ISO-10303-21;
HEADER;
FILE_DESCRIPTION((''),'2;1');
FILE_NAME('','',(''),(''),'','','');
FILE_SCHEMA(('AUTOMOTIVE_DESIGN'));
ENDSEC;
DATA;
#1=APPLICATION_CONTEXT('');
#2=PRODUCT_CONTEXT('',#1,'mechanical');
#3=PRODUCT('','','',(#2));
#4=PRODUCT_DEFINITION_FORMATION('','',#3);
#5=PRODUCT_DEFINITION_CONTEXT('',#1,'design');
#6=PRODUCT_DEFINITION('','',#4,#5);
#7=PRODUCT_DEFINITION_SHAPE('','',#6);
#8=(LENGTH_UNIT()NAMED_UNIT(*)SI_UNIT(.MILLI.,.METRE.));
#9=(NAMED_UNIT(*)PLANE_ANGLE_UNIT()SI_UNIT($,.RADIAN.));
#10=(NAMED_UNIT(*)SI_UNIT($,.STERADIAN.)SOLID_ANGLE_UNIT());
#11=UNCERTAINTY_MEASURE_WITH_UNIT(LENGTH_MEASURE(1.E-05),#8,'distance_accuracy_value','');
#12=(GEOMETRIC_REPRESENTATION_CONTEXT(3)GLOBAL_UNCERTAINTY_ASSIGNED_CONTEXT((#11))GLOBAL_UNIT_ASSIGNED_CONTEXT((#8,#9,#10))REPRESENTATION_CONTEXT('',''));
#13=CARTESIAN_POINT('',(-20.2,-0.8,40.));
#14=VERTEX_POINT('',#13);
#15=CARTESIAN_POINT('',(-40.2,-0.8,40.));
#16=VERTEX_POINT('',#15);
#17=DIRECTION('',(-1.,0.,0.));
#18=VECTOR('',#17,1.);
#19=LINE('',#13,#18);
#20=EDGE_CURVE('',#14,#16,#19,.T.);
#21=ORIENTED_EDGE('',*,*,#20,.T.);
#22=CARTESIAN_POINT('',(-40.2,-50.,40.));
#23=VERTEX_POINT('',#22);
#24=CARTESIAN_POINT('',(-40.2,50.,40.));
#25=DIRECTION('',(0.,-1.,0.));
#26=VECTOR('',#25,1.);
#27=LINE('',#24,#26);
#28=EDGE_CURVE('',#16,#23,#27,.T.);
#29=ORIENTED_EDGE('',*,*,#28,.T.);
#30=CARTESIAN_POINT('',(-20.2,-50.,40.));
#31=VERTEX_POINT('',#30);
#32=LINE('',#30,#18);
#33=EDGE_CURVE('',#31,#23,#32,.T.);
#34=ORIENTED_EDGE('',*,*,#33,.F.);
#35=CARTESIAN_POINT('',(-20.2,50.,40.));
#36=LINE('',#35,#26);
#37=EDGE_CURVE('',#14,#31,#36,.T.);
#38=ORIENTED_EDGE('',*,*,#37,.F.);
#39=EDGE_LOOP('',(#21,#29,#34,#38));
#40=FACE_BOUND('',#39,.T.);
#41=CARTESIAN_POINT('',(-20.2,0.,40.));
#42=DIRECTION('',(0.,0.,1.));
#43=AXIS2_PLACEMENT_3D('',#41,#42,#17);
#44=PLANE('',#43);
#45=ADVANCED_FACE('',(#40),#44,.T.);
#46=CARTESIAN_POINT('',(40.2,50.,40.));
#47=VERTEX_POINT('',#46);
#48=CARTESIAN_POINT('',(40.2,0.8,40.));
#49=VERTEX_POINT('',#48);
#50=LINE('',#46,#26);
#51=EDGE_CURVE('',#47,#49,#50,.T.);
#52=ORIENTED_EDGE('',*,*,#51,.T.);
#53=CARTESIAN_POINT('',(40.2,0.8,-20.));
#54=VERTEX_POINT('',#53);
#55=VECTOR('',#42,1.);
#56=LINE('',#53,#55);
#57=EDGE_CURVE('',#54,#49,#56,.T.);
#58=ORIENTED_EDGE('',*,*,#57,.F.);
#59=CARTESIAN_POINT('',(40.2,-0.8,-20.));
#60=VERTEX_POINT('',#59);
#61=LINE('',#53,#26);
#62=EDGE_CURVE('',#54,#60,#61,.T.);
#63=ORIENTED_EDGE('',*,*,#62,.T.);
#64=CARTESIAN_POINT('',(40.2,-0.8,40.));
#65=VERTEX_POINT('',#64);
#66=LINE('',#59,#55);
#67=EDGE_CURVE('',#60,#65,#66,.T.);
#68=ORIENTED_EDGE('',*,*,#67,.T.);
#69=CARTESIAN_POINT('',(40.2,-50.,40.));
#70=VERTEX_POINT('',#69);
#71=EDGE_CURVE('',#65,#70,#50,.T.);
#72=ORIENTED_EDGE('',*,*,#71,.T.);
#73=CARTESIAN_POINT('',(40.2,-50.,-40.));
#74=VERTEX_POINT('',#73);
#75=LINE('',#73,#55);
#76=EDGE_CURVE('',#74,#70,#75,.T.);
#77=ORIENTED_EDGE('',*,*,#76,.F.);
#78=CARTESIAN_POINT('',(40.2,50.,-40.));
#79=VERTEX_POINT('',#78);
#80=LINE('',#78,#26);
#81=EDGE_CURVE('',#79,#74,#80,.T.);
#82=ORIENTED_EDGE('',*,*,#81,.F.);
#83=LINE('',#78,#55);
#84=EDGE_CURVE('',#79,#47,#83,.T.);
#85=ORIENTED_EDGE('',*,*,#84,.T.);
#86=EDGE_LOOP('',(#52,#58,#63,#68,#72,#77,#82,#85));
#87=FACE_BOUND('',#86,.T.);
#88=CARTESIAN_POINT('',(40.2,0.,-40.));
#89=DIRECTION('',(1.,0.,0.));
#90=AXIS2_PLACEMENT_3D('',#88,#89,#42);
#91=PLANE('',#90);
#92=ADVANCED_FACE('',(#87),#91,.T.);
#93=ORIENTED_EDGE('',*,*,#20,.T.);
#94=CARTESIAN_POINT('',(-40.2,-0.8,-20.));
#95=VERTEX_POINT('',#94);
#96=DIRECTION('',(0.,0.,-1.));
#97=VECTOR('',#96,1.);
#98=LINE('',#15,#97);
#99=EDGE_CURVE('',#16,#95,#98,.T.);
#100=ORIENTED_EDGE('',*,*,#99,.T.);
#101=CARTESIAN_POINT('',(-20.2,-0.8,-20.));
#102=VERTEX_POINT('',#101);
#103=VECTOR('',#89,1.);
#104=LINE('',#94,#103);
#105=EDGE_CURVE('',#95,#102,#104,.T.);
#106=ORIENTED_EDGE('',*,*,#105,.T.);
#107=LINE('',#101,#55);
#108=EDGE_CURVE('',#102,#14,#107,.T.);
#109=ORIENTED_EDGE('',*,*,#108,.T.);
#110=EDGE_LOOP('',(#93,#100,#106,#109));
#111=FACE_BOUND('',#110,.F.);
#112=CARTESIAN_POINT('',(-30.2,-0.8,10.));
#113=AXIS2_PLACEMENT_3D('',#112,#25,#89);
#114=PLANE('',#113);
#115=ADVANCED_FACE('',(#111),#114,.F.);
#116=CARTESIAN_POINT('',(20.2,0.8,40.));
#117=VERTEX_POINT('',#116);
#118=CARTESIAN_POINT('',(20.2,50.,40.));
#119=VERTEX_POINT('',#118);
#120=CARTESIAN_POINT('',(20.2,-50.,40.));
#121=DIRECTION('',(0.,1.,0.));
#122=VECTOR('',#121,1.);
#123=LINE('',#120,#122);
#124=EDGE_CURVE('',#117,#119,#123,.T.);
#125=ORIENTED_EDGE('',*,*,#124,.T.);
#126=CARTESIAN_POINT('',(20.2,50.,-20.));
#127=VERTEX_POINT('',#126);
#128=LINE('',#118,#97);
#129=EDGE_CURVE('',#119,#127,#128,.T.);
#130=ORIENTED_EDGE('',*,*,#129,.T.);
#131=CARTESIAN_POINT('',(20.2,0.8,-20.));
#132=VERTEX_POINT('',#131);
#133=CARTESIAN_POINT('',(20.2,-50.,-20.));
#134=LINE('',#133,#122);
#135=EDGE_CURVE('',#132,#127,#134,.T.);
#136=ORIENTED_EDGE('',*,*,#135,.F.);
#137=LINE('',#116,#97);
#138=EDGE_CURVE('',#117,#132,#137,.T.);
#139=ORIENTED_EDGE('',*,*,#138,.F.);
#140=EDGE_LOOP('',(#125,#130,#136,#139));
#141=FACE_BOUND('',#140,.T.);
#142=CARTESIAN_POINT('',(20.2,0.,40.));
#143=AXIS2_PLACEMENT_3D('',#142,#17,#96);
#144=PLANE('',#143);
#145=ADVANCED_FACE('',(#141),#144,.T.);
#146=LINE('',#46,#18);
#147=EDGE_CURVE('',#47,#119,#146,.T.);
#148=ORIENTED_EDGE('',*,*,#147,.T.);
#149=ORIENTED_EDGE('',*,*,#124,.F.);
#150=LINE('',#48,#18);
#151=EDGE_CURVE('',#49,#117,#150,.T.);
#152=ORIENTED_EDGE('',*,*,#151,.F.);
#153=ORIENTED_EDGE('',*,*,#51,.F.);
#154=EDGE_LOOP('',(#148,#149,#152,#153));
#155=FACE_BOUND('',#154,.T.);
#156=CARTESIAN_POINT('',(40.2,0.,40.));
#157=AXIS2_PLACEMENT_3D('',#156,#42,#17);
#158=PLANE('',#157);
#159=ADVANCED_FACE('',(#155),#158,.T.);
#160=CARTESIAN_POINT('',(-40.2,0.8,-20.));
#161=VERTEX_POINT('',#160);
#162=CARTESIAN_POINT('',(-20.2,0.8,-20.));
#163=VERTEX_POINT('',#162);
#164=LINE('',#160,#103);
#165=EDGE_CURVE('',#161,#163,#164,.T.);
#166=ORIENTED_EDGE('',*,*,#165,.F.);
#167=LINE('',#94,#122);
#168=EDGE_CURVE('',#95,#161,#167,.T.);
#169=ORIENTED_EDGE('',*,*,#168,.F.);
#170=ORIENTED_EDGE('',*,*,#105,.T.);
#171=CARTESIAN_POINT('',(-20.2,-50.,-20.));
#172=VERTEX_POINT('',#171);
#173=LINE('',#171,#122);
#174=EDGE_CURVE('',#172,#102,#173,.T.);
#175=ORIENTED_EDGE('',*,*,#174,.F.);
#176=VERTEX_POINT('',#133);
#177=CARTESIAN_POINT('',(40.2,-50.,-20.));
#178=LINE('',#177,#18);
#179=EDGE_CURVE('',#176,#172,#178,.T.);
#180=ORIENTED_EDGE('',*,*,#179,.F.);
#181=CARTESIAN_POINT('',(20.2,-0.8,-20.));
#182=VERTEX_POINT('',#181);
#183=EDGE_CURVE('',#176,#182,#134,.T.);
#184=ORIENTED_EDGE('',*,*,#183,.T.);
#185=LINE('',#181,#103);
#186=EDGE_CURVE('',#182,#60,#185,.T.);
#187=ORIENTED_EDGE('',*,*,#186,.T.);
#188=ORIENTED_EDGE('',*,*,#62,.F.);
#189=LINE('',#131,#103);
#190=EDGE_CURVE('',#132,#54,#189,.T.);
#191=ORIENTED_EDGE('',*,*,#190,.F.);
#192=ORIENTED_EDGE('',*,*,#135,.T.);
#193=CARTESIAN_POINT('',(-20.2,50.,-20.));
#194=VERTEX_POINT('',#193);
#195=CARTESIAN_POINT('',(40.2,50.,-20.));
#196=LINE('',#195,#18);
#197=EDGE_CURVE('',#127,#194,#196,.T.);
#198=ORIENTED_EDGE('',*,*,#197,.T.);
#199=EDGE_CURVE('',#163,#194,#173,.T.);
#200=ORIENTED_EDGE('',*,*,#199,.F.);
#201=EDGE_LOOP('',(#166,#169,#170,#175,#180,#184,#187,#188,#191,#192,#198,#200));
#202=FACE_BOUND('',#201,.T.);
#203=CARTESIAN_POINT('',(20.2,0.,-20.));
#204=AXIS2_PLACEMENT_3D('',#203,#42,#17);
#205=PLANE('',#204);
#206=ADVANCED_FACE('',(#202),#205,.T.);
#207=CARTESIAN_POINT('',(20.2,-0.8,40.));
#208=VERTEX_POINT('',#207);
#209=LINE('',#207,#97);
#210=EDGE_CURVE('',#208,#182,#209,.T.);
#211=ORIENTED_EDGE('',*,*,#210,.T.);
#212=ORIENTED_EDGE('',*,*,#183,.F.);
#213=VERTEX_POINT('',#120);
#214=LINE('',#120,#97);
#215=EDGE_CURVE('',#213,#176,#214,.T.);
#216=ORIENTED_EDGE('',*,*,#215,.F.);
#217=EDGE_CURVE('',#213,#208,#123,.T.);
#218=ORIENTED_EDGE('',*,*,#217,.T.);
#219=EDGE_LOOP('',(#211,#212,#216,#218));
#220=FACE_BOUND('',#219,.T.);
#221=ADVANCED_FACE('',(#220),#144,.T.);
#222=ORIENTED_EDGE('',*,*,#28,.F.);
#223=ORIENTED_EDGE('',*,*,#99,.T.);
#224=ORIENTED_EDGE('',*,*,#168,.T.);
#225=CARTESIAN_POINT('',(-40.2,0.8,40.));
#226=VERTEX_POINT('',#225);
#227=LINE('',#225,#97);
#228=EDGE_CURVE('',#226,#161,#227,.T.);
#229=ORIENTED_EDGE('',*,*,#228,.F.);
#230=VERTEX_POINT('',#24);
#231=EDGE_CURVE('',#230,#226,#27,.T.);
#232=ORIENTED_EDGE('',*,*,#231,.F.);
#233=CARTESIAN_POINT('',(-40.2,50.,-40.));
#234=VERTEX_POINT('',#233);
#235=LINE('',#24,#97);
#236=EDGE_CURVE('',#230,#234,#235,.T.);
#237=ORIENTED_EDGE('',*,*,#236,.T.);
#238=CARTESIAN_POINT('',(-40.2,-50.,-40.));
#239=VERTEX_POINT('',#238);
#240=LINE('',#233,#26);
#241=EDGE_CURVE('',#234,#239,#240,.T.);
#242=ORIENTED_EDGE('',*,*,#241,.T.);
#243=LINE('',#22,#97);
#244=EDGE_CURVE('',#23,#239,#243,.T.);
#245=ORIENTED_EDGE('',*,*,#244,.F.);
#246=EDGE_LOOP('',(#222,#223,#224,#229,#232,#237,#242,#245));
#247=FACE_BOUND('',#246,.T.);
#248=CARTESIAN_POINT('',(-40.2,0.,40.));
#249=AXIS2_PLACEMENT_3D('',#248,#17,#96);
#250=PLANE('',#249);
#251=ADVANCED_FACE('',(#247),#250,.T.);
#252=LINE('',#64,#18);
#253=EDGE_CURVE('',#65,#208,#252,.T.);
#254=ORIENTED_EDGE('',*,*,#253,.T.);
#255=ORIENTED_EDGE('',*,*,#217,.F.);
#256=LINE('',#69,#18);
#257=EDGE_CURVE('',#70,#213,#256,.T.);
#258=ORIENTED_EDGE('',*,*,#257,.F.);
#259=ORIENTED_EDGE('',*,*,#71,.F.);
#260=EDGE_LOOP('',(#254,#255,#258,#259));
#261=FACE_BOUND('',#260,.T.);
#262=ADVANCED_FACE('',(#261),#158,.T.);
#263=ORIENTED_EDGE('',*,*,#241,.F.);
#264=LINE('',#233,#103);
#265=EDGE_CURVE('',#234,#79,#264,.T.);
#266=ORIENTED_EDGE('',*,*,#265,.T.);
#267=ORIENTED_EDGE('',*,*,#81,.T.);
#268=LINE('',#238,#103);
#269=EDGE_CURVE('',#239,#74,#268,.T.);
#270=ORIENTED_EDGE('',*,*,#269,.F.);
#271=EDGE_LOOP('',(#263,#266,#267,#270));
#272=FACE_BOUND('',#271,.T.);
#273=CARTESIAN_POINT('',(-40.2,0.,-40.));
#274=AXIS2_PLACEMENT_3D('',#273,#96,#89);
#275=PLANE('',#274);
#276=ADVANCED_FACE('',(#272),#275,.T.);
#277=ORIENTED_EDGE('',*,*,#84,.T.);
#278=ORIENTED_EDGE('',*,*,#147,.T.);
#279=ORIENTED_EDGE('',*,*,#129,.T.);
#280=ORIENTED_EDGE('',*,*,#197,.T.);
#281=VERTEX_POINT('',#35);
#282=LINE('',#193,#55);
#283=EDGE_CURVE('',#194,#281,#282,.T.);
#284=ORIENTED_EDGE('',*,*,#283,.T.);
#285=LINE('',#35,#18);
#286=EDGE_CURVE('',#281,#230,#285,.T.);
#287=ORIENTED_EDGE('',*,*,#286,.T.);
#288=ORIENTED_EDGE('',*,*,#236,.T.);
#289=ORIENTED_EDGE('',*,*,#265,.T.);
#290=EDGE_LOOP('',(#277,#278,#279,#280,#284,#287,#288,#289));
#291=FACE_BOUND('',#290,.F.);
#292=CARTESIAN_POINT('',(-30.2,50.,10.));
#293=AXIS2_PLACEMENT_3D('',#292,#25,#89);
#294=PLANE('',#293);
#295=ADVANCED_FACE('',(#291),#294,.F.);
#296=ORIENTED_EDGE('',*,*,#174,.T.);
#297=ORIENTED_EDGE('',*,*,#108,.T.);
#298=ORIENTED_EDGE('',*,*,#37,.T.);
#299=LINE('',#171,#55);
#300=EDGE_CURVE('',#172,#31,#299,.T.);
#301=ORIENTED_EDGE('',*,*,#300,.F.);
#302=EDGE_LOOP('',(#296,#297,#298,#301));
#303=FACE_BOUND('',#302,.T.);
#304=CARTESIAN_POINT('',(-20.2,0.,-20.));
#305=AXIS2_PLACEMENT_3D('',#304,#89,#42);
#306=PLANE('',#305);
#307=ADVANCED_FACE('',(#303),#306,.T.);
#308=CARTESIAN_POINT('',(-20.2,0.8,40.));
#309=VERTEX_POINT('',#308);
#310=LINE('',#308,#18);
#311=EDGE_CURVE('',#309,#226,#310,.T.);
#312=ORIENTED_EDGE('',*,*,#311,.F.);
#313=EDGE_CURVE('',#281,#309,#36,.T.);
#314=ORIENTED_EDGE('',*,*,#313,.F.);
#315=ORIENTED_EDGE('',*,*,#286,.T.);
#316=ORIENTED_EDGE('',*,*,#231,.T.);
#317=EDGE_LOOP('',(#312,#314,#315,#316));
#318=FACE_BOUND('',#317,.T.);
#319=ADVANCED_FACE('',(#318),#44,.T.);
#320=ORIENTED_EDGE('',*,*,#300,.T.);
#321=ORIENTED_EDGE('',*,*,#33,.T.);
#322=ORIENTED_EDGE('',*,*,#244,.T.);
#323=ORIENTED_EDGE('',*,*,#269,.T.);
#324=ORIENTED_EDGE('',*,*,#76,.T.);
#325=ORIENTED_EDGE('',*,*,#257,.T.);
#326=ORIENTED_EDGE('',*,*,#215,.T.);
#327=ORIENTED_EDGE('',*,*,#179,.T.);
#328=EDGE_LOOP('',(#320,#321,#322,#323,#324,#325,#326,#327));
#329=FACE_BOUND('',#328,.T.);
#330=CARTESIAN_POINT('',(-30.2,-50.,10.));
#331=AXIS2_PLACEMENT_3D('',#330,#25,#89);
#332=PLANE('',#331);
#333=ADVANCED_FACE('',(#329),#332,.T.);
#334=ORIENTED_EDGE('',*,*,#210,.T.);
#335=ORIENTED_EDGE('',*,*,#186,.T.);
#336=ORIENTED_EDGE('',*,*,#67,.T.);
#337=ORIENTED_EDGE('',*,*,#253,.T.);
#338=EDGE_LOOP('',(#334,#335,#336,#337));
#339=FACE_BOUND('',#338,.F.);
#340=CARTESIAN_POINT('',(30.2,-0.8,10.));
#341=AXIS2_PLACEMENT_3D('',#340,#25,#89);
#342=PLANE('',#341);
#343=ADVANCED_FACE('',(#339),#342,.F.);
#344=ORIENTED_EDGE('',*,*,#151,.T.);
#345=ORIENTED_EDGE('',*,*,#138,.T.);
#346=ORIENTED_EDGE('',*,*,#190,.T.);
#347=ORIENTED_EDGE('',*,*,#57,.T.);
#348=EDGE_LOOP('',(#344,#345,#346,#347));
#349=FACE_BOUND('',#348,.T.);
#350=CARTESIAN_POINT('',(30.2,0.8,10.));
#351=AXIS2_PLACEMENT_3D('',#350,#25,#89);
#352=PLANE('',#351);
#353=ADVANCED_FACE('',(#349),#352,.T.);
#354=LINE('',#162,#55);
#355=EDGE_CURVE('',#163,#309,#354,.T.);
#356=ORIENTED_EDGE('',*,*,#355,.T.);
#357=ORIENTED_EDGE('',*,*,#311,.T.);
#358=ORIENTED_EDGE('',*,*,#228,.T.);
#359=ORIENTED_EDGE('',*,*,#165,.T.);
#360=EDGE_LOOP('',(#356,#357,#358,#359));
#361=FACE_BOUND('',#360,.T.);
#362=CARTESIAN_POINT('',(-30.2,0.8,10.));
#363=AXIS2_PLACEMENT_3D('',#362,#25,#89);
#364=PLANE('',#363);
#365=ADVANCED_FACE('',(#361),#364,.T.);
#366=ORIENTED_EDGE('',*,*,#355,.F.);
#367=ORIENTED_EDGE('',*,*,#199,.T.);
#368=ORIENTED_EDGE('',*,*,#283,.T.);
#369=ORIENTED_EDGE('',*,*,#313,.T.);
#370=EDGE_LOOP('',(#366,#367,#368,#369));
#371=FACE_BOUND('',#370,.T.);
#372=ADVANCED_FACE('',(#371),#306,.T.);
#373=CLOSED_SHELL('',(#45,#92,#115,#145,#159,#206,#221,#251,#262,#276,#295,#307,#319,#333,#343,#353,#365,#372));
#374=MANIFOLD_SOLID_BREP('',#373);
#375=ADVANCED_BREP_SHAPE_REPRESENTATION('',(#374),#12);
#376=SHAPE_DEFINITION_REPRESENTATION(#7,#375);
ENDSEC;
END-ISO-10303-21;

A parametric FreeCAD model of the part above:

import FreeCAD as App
import Part
import Sketcher

V = App.Vector
Q = App.Units.Quantity


def add_polygon(sketch, points):
    """Adds a closed chain of lines whose ends are joined by coincident constraints."""
    first, n = sketch.GeometryCount, len(points)
    for a, b in zip(points, points[1:] + points[:1]):
        sketch.addGeometry(Part.LineSegment(App.Vector(*a, 0), App.Vector(*b, 0)), False)
    for i in range(n):
        sketch.addConstraint(Sketcher.Constraint("Coincident", first + i, 2, first + (i + 1) % n, 1))

doc = App.newDocument("Part")
body = doc.addObject("PartDesign::Body", "Body")

# Sketch on XZ plane
sketch1 = body.newObject("Sketcher::SketchObject", "Sketch")
sketch1.AttachmentSupport = (doc.getObject("XZ_Plane"), [""])
sketch1.MapMode = "FlatFace"
add_polygon(sketch1, [(-20, -20), (-20, 40), (-40, 40), (-40, -40), (40, -40), (40, 40), (20, 40), (20, -20)])  # lines 0-7
sketch1.addConstraint([
    Sketcher.Constraint("Vertical", 0),
    Sketcher.Constraint("Horizontal", 1),
    Sketcher.Constraint("Vertical", 2),
    Sketcher.Constraint("Horizontal", 3),
    Sketcher.Constraint("Vertical", 4),
    Sketcher.Constraint("Horizontal", 5),
    Sketcher.Constraint("Vertical", 6),
    Sketcher.Constraint("Horizontal", 7),
    Sketcher.Constraint("Symmetric", 1, 2, 3, 2, -1, 1),
    Sketcher.Constraint("Symmetric", 0, 2, 5, 2, -2),
    Sketcher.Constraint("DistanceX", 1, 2, 1, 1, Q("20 mm")),
    Sketcher.Constraint("DistanceY", 0, 1, 0, 2, Q("60 mm")),
    Sketcher.Constraint("DistanceY", 2, 2, 2, 1, Q("80 mm")),
    Sketcher.Constraint("DistanceX", 3, 1, 3, 2, Q("80.4 mm")),
])
pad1 = body.newObject("PartDesign::Pad", "Pad")
pad1.Profile = sketch1
pad1.Length = 100
pad1.Midplane = True

# Sketch on XZ plane
sketch2 = body.newObject("Sketcher::SketchObject", "Sketch001")
sketch2.AttachmentSupport = (doc.getObject("XZ_Plane"), [""])
sketch2.MapMode = "FlatFace"
add_polygon(sketch2, [(-20, -20), (-20, 40), (-40, 40), (-40, -20)])  # lines 0-3
add_polygon(sketch2, [(20, 40), (20, -20), (40, -20), (40, 40)])  # lines 4-7
sketch2.addConstraint([
    Sketcher.Constraint("Vertical", 0),
    Sketcher.Constraint("Horizontal", 1),
    Sketcher.Constraint("Vertical", 2),
    Sketcher.Constraint("Horizontal", 3),
    Sketcher.Constraint("Vertical", 4),
    Sketcher.Constraint("Horizontal", 5),
    Sketcher.Constraint("Vertical", 6),
    Sketcher.Constraint("Horizontal", 7),
    Sketcher.Constraint("Symmetric", 3, 2, 4, 2, -2),
    Sketcher.Constraint("Symmetric", 1, 2, 6, 2, -2),
    Sketcher.Constraint("DistanceX", 1, 2, 1, 1, Q("20 mm")),
    Sketcher.Constraint("DistanceY", 0, 1, 0, 2, Q("60 mm")),
    Sketcher.Constraint("DistanceY", -1, 1, 0, 2, Q("40 mm")),
    Sketcher.Constraint("DistanceX", 0, 2, -1, 1, Q("20.2 mm")),
])
pocket1 = body.newObject("PartDesign::Pocket", "Pocket")
pocket1.Profile = sketch2
pocket1.Length = 1.6
pocket1.Midplane = True

doc.recompute()
